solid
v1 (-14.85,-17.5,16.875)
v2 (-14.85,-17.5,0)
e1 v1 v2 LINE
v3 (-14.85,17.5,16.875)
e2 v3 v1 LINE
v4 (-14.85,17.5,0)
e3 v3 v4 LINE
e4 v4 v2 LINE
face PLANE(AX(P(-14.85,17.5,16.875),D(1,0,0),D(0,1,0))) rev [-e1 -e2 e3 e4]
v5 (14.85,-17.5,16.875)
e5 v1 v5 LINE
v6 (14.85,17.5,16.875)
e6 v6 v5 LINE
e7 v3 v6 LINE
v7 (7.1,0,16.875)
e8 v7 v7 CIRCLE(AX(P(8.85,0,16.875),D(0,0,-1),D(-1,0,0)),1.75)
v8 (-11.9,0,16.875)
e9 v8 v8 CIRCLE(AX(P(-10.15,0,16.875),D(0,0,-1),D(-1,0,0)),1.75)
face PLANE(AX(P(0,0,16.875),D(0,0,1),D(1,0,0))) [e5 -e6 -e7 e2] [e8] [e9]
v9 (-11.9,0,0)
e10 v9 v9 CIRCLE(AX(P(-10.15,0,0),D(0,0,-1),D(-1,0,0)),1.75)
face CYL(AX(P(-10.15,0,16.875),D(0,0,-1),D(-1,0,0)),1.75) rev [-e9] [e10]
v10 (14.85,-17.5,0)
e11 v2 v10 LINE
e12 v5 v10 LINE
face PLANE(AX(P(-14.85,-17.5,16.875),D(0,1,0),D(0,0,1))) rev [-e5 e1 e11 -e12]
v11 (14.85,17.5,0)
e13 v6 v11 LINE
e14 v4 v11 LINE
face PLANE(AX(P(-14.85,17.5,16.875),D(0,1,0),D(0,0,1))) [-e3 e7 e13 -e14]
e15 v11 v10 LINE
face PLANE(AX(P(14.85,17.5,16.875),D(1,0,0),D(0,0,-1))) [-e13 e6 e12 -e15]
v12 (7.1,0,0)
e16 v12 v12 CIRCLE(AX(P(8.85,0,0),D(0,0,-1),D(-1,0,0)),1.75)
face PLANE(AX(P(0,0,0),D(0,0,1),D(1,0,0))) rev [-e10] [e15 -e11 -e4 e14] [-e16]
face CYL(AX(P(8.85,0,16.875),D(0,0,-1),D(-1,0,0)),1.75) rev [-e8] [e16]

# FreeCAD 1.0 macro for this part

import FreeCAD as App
import Part
import Sketcher


def add_polygon(sketch, points):
    """Adds a closed chain of lines whose ends are joined by coincident constraints."""
    first, n = sketch.GeometryCount, len(points)
    for a, b in zip(points, points[1:] + points[:1]):
        sketch.addGeometry(Part.LineSegment(App.Vector(*a, 0), App.Vector(*b, 0)), False)
    for i in range(n):
        sketch.addConstraint(Sketcher.Constraint("Coincident", first + i, 2, first + (i + 1) % n, 1))

doc = App.newDocument("Part")
body = doc.addObject("PartDesign::Body", "Body")

# Sketch on XY plane
sketch1 = doc.addObject("Sketcher::SketchObject", "Sketch")
body.addObject(sketch1)
sketch1.AttachmentSupport = (doc.XY_Plane, [""])
sketch1.MapMode = "FlatFace"
add_polygon(sketch1, [(-15, 18), (-15, -18), (15, -18), (15, 18)])  # lines 0-3
sketch1.addConstraint([
    Sketcher.Constraint("Vertical", 0),
    Sketcher.Constraint("Horizontal", 1),
    Sketcher.Constraint("Vertical", 2),
    Sketcher.Constraint("Horizontal", 3),
    Sketcher.Constraint("Symmetric", 0, 2, 2, 2, -1, 1),
    Sketcher.Constraint("DistanceY", 0, 2, 0, 1, 35.0),
    Sketcher.Constraint("DistanceX", 1, 1, 1, 2, 29.7),
])
pad1 = doc.addObject("PartDesign::Pad", "Pad")
body.addObject(pad1)
pad1.Profile = sketch1
pad1.Length = 16.875

# Sketch on XY plane
sketch2 = doc.addObject("Sketcher::SketchObject", "Sketch001")
body.addObject(sketch2)
sketch2.AttachmentSupport = (doc.XY_Plane, [""])
sketch2.MapMode = "FlatFace"
sketch2.addGeometry([
    Part.Circle(App.Vector(8.8, 0, 0), App.Vector(0, 0, 1), 1.8),
    Part.Circle(App.Vector(-10.2, 0, 0), App.Vector(0, 0, 1), 1.8),
], False)
sketch2.addConstraint([
    Sketcher.Constraint("Equal", 0, 1),
    Sketcher.Constraint("PointOnObject", 0, 3, -1),
    Sketcher.Constraint("PointOnObject", 1, 3, -1),
    Sketcher.Constraint("Diameter", 0, 3.5),
    Sketcher.Constraint("DistanceX", 1, 3, 0, 3, 19.0),
    Sketcher.Constraint("DistanceX", -1, 1, 0, 3, 8.85),
])
pocket1 = doc.addObject("PartDesign::Pocket", "Pocket")
body.addObject(pocket1)
pocket1.Profile = sketch2
pocket1.Length = 16.875
pocket1.Reversed = True

doc.recompute()
